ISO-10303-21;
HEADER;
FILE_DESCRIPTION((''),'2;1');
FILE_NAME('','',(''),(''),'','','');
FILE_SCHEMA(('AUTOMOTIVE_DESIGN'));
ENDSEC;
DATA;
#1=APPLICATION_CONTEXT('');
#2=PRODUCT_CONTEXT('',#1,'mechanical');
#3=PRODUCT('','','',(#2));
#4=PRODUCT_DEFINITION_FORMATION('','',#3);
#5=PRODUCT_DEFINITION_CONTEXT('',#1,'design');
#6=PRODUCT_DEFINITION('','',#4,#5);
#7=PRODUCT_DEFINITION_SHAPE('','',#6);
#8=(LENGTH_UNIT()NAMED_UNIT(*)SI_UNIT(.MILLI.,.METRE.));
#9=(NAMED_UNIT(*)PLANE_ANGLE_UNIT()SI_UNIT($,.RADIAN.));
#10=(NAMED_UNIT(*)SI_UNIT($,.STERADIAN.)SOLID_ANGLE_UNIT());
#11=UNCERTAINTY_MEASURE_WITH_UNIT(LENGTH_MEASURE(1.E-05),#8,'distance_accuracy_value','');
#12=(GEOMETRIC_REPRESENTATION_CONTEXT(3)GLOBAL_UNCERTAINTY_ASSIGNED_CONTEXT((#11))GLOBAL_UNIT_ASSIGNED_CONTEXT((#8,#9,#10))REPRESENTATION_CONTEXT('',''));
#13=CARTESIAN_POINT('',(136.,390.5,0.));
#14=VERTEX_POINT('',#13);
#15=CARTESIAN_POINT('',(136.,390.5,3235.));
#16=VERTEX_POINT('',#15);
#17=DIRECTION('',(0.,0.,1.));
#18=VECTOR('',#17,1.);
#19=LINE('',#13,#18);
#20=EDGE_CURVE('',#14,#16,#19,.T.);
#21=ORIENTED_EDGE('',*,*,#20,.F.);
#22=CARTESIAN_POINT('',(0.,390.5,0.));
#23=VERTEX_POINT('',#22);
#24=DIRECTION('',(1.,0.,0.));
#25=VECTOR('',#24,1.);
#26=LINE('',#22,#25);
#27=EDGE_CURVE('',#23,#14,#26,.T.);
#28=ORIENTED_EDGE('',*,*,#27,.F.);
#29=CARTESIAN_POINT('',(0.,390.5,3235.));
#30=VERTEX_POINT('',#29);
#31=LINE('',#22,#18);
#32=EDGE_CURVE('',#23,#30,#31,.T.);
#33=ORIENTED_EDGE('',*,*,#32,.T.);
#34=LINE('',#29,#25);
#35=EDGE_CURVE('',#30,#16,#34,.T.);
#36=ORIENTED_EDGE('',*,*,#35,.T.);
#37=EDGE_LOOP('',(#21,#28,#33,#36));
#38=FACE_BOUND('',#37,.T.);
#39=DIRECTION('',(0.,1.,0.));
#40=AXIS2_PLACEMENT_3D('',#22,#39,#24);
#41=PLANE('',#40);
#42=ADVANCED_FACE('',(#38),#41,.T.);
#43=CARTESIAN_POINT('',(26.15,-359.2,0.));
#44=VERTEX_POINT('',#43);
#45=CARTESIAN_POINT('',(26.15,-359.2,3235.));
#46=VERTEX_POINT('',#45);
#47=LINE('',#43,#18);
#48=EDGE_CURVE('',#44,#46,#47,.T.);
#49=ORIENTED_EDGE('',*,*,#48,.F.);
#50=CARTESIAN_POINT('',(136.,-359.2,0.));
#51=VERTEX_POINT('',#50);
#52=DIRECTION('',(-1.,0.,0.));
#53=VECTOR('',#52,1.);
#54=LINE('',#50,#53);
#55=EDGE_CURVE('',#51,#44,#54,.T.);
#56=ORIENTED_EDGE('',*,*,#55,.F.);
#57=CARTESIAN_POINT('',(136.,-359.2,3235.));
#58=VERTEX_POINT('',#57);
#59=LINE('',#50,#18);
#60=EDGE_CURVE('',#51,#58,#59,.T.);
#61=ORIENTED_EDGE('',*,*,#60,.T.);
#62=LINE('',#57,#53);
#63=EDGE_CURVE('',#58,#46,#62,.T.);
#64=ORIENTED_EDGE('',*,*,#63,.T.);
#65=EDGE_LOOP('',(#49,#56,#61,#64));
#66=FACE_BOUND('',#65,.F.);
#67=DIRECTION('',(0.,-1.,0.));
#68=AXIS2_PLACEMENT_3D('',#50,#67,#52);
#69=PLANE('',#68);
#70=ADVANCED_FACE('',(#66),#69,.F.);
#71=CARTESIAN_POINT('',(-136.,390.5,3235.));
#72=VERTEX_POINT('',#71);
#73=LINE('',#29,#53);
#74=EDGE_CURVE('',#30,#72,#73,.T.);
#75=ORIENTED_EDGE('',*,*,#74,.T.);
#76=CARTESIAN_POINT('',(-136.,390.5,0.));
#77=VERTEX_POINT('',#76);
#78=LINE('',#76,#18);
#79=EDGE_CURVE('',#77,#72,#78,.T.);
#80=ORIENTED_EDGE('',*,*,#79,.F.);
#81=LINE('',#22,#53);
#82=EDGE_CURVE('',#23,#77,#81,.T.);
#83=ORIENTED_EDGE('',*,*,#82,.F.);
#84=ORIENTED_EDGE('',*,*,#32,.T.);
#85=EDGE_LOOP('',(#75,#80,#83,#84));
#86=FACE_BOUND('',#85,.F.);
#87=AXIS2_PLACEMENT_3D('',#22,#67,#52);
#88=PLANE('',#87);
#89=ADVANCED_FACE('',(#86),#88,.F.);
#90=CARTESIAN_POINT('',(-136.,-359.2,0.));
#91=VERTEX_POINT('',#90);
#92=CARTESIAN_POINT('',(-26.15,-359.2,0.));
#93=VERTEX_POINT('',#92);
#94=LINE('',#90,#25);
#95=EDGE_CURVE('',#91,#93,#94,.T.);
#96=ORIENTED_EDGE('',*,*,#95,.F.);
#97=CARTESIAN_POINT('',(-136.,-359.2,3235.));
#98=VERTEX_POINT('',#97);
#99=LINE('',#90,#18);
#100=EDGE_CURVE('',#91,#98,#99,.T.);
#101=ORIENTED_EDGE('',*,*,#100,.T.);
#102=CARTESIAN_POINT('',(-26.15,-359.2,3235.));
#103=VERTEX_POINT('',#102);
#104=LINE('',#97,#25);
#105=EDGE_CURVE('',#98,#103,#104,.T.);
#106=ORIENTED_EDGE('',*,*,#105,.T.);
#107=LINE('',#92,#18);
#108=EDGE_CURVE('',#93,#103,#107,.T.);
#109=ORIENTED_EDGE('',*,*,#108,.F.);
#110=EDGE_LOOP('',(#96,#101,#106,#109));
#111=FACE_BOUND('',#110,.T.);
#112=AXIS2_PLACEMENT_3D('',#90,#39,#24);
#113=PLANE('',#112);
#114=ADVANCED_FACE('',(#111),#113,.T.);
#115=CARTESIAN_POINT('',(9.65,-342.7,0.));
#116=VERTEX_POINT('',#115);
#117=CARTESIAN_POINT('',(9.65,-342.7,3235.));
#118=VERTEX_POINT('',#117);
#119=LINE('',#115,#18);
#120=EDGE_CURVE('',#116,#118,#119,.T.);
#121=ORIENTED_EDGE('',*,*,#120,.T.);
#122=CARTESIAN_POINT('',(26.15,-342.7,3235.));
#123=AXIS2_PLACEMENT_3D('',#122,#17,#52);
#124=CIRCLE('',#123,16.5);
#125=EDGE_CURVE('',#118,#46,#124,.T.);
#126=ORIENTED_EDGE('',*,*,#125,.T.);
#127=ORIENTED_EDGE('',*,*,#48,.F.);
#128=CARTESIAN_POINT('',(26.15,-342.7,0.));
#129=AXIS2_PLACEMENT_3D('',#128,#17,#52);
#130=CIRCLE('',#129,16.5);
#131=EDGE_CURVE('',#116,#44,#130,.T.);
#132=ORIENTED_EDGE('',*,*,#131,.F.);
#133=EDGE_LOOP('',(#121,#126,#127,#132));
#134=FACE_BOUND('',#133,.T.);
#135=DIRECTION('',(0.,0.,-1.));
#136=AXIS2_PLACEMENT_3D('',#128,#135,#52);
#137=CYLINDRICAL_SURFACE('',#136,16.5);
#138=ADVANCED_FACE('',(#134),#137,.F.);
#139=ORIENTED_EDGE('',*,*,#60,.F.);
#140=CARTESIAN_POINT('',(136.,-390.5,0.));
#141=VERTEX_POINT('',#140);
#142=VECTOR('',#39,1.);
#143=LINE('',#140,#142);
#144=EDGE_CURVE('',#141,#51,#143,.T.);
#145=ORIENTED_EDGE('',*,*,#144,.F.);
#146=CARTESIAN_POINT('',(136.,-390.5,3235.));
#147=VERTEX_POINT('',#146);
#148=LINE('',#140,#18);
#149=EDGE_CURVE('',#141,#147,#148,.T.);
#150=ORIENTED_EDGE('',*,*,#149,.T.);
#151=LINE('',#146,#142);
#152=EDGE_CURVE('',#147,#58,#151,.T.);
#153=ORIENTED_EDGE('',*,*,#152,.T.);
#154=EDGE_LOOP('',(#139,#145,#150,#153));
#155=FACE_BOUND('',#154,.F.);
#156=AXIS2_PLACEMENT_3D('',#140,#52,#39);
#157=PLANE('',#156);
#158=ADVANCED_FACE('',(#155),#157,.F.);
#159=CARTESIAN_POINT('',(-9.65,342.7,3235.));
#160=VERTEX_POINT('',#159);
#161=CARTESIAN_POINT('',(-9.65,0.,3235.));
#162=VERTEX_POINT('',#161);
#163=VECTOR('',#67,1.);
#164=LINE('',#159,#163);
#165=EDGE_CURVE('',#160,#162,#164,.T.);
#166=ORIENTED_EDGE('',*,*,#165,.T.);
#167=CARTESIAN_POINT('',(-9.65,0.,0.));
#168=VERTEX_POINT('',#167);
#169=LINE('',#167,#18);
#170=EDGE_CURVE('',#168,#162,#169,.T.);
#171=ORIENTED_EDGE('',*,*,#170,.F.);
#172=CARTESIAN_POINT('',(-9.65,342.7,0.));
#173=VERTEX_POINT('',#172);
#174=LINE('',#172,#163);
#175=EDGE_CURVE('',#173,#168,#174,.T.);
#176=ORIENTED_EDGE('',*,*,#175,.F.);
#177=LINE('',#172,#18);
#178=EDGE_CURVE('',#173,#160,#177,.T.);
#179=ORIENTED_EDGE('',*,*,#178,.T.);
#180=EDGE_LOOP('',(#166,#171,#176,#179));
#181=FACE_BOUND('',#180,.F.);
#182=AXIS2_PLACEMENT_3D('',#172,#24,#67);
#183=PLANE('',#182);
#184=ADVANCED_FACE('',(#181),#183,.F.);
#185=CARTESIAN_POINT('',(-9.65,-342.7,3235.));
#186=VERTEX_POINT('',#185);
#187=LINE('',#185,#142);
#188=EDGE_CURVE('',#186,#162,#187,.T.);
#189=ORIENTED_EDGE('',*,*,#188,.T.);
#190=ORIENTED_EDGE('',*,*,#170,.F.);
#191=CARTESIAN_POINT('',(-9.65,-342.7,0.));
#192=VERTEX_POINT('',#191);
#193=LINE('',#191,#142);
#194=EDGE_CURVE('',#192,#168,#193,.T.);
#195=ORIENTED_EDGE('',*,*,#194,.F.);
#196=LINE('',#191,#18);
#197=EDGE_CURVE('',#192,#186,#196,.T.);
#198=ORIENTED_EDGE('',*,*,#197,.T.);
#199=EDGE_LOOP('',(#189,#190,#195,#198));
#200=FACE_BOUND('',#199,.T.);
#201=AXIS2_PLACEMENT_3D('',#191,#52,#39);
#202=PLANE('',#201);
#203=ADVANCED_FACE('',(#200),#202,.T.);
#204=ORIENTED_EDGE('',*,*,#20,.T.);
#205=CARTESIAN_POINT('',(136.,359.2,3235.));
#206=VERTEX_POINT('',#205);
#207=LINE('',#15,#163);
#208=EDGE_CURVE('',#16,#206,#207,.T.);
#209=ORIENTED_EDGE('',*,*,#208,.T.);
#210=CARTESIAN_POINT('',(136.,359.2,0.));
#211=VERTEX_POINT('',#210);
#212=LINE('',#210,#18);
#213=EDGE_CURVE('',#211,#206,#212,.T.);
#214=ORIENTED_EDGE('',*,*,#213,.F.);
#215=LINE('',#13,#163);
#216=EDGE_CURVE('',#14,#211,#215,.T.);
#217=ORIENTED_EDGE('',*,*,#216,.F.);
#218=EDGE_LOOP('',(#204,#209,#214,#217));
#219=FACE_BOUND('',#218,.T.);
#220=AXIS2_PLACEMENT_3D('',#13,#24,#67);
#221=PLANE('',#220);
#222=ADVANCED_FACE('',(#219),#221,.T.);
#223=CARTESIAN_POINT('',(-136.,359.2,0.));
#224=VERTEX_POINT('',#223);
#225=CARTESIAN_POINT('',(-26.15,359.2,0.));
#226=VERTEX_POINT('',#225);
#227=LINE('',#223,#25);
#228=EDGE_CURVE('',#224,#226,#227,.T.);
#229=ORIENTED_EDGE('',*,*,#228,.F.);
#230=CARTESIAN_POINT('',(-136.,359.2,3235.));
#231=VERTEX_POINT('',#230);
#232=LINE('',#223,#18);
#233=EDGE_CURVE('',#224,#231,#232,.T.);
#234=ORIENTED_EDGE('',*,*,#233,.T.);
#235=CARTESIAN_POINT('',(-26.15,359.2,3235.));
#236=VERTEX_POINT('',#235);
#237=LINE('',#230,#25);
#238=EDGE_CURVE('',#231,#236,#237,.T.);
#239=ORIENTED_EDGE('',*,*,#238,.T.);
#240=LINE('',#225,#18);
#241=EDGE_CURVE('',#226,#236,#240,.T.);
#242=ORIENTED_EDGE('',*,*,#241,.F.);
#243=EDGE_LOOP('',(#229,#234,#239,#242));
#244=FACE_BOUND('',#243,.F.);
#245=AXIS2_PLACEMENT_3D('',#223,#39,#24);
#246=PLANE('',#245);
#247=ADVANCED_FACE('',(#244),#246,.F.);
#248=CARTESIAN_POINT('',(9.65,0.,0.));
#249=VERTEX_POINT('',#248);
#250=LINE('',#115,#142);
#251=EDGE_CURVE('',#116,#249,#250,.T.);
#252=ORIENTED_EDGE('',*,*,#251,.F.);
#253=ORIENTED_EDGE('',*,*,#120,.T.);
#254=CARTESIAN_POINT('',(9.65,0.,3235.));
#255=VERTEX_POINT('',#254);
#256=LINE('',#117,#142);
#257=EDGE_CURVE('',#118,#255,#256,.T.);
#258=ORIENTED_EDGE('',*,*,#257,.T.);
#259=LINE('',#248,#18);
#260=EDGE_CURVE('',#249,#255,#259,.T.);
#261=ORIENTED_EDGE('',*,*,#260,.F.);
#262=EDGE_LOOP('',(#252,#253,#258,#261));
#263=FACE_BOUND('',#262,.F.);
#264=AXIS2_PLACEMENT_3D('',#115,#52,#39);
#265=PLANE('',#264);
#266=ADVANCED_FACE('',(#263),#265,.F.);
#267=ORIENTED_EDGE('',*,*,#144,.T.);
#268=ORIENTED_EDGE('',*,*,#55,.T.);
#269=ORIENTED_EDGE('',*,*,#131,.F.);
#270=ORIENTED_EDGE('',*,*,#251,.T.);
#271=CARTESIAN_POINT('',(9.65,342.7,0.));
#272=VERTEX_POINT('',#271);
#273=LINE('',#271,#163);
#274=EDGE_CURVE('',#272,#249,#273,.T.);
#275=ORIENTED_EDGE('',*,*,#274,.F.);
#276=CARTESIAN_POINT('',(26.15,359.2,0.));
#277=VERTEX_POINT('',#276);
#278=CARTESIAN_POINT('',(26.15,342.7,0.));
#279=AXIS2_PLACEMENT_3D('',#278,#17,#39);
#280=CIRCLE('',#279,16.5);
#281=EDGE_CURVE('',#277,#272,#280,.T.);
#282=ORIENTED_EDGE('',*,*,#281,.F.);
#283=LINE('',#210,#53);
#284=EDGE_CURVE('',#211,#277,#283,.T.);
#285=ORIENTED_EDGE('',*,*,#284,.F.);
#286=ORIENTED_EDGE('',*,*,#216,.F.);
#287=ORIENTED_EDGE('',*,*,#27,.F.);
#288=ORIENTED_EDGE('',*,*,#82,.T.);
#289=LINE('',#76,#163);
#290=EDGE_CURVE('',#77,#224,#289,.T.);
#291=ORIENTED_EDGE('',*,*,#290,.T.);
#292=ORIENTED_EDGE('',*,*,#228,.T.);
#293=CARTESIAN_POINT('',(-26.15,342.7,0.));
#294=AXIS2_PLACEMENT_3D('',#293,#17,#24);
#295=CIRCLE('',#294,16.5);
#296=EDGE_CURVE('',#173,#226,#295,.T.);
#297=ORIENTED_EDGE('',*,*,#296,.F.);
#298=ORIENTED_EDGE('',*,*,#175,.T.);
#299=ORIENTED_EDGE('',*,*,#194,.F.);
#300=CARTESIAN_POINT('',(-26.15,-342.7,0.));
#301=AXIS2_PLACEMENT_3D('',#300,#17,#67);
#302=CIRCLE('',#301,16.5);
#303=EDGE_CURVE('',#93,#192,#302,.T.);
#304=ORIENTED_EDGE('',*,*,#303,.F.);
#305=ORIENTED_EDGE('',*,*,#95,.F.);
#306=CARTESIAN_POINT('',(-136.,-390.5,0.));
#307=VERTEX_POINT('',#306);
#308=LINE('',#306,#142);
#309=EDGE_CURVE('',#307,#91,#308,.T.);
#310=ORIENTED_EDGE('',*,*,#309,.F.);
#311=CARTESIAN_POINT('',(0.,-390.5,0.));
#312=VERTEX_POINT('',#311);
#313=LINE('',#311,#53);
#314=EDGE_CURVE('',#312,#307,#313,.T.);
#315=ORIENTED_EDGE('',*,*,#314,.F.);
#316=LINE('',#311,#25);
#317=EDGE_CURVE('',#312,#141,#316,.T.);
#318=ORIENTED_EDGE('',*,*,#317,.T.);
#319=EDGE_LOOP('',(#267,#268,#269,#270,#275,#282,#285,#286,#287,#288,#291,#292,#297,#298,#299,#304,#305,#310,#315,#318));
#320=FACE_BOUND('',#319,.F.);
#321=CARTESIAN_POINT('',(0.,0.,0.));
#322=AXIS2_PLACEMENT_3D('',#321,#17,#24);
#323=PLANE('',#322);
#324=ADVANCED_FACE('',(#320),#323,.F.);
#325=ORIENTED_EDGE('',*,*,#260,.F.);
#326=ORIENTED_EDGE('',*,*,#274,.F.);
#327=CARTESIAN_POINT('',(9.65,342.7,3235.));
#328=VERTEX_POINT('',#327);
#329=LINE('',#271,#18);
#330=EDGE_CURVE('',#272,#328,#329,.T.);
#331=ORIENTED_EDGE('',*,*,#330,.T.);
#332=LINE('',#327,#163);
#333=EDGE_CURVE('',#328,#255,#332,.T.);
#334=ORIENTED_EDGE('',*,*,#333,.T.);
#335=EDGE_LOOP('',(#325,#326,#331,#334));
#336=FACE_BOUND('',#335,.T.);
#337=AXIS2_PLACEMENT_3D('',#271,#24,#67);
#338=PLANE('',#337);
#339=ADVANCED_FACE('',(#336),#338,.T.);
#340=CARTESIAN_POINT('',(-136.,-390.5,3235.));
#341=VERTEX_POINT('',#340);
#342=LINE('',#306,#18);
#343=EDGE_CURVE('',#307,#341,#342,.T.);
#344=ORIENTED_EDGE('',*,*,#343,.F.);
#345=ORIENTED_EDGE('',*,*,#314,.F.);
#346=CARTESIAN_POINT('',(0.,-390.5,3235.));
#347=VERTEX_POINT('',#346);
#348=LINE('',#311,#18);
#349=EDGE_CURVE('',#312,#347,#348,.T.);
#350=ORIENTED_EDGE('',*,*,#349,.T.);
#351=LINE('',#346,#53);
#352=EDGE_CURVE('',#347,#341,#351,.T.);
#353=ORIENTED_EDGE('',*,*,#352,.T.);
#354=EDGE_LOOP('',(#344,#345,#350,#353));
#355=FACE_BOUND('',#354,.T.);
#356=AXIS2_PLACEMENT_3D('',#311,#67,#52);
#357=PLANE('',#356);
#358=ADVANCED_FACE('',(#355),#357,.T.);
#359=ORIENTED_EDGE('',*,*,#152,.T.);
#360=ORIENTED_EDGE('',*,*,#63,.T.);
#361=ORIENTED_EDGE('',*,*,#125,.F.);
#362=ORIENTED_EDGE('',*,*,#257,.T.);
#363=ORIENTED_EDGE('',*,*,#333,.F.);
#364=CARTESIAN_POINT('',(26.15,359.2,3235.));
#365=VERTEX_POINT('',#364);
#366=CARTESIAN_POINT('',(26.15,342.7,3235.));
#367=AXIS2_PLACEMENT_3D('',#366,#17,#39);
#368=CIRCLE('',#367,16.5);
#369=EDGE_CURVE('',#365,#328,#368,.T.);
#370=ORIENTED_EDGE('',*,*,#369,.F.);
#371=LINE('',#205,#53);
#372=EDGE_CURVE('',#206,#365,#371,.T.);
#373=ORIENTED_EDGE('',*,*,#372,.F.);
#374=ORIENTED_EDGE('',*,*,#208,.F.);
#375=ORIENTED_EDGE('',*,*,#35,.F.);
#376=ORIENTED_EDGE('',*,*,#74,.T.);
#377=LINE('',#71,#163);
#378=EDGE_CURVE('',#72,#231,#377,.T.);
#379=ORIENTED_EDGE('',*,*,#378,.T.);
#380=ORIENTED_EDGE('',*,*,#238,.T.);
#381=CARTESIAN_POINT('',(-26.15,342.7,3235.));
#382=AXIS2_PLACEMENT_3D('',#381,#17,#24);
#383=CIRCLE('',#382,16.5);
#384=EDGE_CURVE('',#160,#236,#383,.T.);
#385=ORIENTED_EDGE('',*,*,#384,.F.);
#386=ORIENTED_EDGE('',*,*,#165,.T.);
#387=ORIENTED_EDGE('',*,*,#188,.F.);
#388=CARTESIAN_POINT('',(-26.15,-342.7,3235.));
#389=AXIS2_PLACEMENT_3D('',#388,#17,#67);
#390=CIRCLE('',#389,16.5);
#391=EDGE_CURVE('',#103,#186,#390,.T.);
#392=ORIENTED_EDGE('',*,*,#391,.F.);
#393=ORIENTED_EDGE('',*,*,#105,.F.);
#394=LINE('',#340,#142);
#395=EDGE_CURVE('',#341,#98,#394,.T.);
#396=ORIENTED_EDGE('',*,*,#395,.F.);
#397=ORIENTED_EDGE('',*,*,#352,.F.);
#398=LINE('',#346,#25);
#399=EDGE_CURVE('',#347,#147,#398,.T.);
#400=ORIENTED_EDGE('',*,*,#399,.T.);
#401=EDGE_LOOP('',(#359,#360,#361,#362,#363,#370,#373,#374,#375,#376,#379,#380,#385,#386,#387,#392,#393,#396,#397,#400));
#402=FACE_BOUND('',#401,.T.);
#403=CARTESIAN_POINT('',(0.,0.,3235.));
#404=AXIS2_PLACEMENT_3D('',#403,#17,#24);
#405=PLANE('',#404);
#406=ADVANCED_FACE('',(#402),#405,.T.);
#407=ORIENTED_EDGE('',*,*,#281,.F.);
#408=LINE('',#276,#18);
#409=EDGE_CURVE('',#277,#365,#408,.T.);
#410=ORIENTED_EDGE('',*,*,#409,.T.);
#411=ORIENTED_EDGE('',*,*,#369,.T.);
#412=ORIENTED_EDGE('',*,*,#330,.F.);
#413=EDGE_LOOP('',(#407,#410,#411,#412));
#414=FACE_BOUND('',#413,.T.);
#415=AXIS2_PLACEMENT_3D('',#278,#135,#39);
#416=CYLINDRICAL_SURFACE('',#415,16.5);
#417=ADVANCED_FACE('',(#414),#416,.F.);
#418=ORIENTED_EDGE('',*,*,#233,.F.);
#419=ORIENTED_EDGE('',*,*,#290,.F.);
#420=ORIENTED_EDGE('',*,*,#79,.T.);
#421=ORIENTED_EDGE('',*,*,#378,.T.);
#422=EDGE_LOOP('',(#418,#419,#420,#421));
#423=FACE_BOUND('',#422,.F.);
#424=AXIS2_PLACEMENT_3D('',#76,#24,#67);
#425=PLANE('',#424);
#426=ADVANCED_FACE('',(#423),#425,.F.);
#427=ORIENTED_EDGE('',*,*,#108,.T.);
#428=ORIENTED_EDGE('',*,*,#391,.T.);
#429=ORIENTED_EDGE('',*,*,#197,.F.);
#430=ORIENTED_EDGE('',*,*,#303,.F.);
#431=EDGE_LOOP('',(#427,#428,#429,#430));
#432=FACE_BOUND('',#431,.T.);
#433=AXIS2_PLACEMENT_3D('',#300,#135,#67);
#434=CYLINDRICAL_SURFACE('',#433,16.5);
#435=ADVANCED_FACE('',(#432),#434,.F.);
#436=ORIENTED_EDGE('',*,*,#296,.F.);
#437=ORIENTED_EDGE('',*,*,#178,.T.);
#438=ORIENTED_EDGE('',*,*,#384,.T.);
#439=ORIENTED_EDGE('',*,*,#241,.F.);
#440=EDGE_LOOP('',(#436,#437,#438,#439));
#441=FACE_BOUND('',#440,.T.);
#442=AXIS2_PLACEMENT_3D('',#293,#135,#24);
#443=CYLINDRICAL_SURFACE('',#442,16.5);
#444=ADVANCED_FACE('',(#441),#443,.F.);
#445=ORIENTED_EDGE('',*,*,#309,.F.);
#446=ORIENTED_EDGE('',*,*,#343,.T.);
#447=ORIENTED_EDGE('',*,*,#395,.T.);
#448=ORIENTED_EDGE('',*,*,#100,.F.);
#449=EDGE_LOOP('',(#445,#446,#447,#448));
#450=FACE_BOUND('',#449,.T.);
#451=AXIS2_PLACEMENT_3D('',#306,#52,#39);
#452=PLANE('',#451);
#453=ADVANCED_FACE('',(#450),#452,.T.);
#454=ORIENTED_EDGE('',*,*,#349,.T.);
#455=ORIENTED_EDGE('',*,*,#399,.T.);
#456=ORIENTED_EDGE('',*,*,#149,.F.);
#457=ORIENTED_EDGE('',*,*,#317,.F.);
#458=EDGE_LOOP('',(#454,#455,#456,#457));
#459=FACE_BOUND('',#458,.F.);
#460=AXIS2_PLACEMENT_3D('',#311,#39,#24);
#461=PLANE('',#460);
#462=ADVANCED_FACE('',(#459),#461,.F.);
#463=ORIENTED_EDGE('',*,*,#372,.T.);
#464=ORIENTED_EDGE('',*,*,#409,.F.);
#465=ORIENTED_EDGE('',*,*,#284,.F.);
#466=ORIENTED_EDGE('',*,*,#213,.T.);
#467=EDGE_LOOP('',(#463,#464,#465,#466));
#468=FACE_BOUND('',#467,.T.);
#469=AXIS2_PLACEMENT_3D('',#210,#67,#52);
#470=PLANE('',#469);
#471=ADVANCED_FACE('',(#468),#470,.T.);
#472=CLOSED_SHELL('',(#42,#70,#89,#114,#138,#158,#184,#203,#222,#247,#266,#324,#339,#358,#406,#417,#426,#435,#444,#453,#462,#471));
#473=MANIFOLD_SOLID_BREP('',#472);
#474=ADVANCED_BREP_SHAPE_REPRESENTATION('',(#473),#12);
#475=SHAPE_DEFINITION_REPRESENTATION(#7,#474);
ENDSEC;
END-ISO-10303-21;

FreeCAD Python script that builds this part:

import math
import FreeCAD as App
import Part
import Sketcher

doc = App.newDocument("Part")
body = doc.addObject("PartDesign::Body", "Body")

# Sketch on XY plane
sketch1 = body.newObject("Sketcher::SketchObject", "Sketch")
sketch1.AttachmentSupport = (doc.getObject("XY_Plane"), [""])
sketch1.MapMode = "FlatFace"
sketch1.addGeometry([
    Part.LineSegment(App.Vector(-136, -359, 0), App.Vector(-136, -390, 0)),  # 0
    Part.LineSegment(App.Vector(-136, -390, 0), App.Vector(136, -390, 0)),  # 1
    Part.LineSegment(App.Vector(136, -390, 0), App.Vector(136, -359, 0)),  # 2
    Part.LineSegment(App.Vector(136, -359, 0), App.Vector(26, -359, 0)),  # 3
    Part.ArcOfCircle(Part.Circle(App.Vector(26, -343, 0), App.Vector(0, 0, 1), 16), math.radians(180), math.radians(270)),  # 4
    Part.LineSegment(App.Vector(10, -343, 0), App.Vector(10, 343, 0)),  # 5
    Part.ArcOfCircle(Part.Circle(App.Vector(26, 343, 0), App.Vector(0, 0, 1), 16), math.radians(90), math.radians(180)),  # 6
    Part.LineSegment(App.Vector(26, 359, 0), App.Vector(136, 359, 0)),  # 7
    Part.LineSegment(App.Vector(136, 359, 0), App.Vector(136, 390, 0)),  # 8
    Part.LineSegment(App.Vector(136, 390, 0), App.Vector(-136, 390, 0)),  # 9
    Part.LineSegment(App.Vector(-136, 390, 0), App.Vector(-136, 359, 0)),  # 10
    Part.LineSegment(App.Vector(-136, 359, 0), App.Vector(-26, 359, 0)),  # 11
    Part.ArcOfCircle(Part.Circle(App.Vector(-26, 343, 0), App.Vector(0, 0, 1), 16), math.radians(0), math.radians(90)),  # 12
    Part.LineSegment(App.Vector(-10, 343, 0), App.Vector(-10, -343, 0)),  # 13
    Part.ArcOfCircle(Part.Circle(App.Vector(-26, -343, 0), App.Vector(0, 0, 1), 16), math.radians(-90), math.radians(0)),  # 14
    Part.LineSegment(App.Vector(-26, -359, 0), App.Vector(-136, -359, 0)),  # 15
], False)
sketch1.addConstraint([
    Sketcher.Constraint("Coincident", 0, 2, 1, 1),
    Sketcher.Constraint("Coincident", 1, 2, 2, 1),
    Sketcher.Constraint("Coincident", 2, 2, 3, 1),
    Sketcher.Constraint("Tangent", 3, 2, 4, 2),
    Sketcher.Constraint("Tangent", 4, 1, 5, 1),
    Sketcher.Constraint("Tangent", 5, 2, 6, 2),
    Sketcher.Constraint("Tangent", 6, 1, 7, 1),
    Sketcher.Constraint("Coincident", 7, 2, 8, 1),
    Sketcher.Constraint("Coincident", 8, 2, 9, 1),
    Sketcher.Constraint("Coincident", 9, 2, 10, 1),
    Sketcher.Constraint("Coincident", 10, 2, 11, 1),
    Sketcher.Constraint("Tangent", 11, 2, 12, 2),
    Sketcher.Constraint("Tangent", 12, 1, 13, 1),
    Sketcher.Constraint("Tangent", 13, 2, 14, 2),
    Sketcher.Constraint("Tangent", 14, 1, 15, 1),
    Sketcher.Constraint("Coincident", 15, 2, 0, 1),
    Sketcher.Constraint("Vertical", 0),
    Sketcher.Constraint("Horizontal", 1),
    Sketcher.Constraint("Vertical", 2),
    Sketcher.Constraint("Horizontal", 3),
    Sketcher.Constraint("Vertical", 5),
    Sketcher.Constraint("Horizontal", 7),
    Sketcher.Constraint("Vertical", 8),
    Sketcher.Constraint("Horizontal", 9),
    Sketcher.Constraint("Vertical", 10),
    Sketcher.Constraint("Horizontal", 11),
    Sketcher.Constraint("Vertical", 13),
    Sketcher.Constraint("Horizontal", 15),
    Sketcher.Constraint("Equal", 4, 6),
    Sketcher.Constraint("Equal", 6, 12),
    Sketcher.Constraint("Equal", 12, 14),
    Sketcher.Constraint("Symmetric", 4, 3, 12, 3, -1, 1),
    Sketcher.Constraint("Symmetric", 0, 2, 8, 2, -1, 1),
    Sketcher.Constraint("Symmetric", 7, 2, 10, 2, -2),
    Sketcher.Constraint("Symmetric", 2, 2, 15, 2, -2),
    Sketcher.Constraint("Radius", 4, 16.5),
    Sketcher.Constraint("DistanceY", 0, 2, 0, 1, 31.3),
    Sketcher.Constraint("DistanceX", 0, 2, -1, 1, 136.0),
    Sketcher.Constraint("DistanceY", 0, 2, -1, 1, 390.5),
    Sketcher.Constraint("DistanceX", -1, 1, 4, 1, 9.65),
])
pad1 = body.newObject("PartDesign::Pad", "Pad")
pad1.Profile = sketch1
pad1.Length = 3235

doc.recompute()
